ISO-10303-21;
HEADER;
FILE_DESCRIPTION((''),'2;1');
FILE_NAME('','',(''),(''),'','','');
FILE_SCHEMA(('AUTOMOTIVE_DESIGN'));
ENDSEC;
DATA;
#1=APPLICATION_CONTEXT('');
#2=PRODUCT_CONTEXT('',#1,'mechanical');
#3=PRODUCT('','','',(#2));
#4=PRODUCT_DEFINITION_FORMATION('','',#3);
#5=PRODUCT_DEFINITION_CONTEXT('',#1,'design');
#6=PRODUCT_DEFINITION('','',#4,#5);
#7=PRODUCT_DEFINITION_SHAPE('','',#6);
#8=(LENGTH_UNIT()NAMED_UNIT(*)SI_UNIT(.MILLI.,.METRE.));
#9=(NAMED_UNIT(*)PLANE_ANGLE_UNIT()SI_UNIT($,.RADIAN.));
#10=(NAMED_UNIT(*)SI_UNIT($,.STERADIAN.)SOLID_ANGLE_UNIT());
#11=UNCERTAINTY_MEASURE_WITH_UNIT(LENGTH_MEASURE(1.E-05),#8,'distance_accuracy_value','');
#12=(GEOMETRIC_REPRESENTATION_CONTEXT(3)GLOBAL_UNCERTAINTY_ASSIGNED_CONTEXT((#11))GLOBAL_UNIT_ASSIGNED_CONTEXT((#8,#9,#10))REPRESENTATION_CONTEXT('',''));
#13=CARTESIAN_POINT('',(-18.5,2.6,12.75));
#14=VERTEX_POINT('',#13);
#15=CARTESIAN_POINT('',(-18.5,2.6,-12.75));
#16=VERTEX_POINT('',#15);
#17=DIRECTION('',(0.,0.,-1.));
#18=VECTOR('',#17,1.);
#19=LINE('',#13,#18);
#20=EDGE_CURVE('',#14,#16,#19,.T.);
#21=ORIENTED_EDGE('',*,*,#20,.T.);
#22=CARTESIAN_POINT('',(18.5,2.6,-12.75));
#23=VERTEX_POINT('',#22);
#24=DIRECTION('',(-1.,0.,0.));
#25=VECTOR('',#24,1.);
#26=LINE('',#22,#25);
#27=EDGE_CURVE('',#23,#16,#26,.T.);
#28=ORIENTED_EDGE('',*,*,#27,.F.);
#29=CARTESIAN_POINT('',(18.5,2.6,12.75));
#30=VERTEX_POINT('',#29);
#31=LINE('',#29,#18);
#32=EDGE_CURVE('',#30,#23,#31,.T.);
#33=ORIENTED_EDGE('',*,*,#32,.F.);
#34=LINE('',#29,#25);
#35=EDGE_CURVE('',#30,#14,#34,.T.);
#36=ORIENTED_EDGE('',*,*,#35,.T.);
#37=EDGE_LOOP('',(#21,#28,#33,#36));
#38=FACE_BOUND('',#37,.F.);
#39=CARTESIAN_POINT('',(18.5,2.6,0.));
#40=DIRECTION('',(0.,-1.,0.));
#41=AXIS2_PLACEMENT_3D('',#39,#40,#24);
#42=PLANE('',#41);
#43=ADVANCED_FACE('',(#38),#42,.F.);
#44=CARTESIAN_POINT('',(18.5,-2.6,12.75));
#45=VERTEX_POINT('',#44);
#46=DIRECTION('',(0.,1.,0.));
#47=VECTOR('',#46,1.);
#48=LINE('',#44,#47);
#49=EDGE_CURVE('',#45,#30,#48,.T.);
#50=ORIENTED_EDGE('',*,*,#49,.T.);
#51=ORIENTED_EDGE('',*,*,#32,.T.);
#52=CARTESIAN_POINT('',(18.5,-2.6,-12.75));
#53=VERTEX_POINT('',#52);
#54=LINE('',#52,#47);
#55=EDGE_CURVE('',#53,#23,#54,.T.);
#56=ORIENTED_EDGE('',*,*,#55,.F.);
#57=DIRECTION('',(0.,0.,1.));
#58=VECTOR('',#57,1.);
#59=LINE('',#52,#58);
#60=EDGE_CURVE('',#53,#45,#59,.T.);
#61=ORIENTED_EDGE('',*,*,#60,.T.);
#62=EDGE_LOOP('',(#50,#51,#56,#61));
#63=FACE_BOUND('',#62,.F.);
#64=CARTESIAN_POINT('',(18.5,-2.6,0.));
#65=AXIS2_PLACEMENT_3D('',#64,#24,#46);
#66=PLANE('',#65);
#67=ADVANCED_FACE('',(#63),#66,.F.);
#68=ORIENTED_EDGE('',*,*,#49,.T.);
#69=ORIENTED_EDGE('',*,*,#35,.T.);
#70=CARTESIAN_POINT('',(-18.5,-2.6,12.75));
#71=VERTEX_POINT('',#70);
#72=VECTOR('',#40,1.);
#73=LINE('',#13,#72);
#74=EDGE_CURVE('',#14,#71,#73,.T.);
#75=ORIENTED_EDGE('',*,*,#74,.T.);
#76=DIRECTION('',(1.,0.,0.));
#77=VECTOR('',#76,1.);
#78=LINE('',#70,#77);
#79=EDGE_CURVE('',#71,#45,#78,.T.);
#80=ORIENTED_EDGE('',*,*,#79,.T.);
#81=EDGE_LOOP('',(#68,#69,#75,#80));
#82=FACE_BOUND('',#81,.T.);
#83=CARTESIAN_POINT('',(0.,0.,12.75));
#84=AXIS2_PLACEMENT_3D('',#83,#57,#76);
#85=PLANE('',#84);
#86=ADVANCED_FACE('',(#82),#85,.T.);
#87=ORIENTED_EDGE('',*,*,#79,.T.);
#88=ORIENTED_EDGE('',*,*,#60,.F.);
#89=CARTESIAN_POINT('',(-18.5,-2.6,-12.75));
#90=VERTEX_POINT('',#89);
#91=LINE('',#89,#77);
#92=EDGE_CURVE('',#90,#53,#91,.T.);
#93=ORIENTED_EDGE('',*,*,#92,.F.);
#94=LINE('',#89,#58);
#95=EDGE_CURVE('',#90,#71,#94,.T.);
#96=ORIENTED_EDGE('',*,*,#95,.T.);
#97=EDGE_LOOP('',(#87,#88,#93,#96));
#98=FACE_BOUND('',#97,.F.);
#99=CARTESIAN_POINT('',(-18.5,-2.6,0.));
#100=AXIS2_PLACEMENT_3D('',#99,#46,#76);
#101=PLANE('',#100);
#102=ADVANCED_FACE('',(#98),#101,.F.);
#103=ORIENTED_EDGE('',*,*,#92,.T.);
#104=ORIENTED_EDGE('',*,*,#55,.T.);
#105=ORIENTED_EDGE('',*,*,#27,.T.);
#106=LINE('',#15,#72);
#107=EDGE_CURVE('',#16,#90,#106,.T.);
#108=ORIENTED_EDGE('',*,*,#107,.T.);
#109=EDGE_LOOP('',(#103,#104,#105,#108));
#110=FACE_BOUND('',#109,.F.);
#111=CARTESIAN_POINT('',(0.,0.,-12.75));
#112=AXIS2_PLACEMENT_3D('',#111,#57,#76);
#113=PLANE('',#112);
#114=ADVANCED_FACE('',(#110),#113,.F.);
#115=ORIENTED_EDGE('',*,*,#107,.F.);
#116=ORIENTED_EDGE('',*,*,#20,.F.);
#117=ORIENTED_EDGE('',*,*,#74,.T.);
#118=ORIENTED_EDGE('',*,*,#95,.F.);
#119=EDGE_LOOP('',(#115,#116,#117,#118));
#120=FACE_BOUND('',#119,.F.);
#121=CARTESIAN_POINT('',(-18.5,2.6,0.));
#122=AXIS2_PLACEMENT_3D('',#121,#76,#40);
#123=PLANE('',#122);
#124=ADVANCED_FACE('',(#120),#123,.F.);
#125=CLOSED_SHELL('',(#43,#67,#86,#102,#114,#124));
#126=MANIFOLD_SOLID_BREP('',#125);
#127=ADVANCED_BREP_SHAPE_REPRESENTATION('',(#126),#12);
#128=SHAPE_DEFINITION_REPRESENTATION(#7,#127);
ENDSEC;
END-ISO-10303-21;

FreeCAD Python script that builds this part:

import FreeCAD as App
import Part
import Sketcher

V = App.Vector


def add_polygon(sketch, points):
    """Adds a closed chain of lines whose ends are joined by coincident constraints."""
    first, n = sketch.GeometryCount, len(points)
    for a, b in zip(points, points[1:] + points[:1]):
        sketch.addGeometry(Part.LineSegment(App.Vector(*a, 0), App.Vector(*b, 0)), False)
    for i in range(n):
        sketch.addConstraint(Sketcher.Constraint("Coincident", first + i, 2, first + (i + 1) % n, 1))

doc = App.newDocument("Part")
body = doc.addObject("PartDesign::Body", "Body")

# Sketch on XY plane
sketch1 = body.newObject("Sketcher::SketchObject", "Sketch")
sketch1.AttachmentSupport = (doc.getObject("XY_Plane"), [""])
sketch1.MapMode = "FlatFace"
add_polygon(sketch1, [(-18.5, 2.6), (-18.5, -2.6), (18.5, -2.6), (18.5, 2.6)])  # lines 0-3
sketch1.addConstraint([
    Sketcher.Constraint("Vertical", 0),
    Sketcher.Constraint("Horizontal", 1),
    Sketcher.Constraint("Vertical", 2),
    Sketcher.Constraint("Horizontal", 3),
    Sketcher.Constraint("Symmetric", 0, 2, 2, 2, -1, 1),
    Sketcher.Constraint("DistanceX", 1, 1, 1, 2, 37.0),
    Sketcher.Constraint("DistanceY", 0, 2, 0, 1, 5.2),
])
pad1 = body.newObject("PartDesign::Pad", "Pad")
pad1.Profile = sketch1
pad1.Length = 25.5
pad1.Midplane = True

doc.recompute()
